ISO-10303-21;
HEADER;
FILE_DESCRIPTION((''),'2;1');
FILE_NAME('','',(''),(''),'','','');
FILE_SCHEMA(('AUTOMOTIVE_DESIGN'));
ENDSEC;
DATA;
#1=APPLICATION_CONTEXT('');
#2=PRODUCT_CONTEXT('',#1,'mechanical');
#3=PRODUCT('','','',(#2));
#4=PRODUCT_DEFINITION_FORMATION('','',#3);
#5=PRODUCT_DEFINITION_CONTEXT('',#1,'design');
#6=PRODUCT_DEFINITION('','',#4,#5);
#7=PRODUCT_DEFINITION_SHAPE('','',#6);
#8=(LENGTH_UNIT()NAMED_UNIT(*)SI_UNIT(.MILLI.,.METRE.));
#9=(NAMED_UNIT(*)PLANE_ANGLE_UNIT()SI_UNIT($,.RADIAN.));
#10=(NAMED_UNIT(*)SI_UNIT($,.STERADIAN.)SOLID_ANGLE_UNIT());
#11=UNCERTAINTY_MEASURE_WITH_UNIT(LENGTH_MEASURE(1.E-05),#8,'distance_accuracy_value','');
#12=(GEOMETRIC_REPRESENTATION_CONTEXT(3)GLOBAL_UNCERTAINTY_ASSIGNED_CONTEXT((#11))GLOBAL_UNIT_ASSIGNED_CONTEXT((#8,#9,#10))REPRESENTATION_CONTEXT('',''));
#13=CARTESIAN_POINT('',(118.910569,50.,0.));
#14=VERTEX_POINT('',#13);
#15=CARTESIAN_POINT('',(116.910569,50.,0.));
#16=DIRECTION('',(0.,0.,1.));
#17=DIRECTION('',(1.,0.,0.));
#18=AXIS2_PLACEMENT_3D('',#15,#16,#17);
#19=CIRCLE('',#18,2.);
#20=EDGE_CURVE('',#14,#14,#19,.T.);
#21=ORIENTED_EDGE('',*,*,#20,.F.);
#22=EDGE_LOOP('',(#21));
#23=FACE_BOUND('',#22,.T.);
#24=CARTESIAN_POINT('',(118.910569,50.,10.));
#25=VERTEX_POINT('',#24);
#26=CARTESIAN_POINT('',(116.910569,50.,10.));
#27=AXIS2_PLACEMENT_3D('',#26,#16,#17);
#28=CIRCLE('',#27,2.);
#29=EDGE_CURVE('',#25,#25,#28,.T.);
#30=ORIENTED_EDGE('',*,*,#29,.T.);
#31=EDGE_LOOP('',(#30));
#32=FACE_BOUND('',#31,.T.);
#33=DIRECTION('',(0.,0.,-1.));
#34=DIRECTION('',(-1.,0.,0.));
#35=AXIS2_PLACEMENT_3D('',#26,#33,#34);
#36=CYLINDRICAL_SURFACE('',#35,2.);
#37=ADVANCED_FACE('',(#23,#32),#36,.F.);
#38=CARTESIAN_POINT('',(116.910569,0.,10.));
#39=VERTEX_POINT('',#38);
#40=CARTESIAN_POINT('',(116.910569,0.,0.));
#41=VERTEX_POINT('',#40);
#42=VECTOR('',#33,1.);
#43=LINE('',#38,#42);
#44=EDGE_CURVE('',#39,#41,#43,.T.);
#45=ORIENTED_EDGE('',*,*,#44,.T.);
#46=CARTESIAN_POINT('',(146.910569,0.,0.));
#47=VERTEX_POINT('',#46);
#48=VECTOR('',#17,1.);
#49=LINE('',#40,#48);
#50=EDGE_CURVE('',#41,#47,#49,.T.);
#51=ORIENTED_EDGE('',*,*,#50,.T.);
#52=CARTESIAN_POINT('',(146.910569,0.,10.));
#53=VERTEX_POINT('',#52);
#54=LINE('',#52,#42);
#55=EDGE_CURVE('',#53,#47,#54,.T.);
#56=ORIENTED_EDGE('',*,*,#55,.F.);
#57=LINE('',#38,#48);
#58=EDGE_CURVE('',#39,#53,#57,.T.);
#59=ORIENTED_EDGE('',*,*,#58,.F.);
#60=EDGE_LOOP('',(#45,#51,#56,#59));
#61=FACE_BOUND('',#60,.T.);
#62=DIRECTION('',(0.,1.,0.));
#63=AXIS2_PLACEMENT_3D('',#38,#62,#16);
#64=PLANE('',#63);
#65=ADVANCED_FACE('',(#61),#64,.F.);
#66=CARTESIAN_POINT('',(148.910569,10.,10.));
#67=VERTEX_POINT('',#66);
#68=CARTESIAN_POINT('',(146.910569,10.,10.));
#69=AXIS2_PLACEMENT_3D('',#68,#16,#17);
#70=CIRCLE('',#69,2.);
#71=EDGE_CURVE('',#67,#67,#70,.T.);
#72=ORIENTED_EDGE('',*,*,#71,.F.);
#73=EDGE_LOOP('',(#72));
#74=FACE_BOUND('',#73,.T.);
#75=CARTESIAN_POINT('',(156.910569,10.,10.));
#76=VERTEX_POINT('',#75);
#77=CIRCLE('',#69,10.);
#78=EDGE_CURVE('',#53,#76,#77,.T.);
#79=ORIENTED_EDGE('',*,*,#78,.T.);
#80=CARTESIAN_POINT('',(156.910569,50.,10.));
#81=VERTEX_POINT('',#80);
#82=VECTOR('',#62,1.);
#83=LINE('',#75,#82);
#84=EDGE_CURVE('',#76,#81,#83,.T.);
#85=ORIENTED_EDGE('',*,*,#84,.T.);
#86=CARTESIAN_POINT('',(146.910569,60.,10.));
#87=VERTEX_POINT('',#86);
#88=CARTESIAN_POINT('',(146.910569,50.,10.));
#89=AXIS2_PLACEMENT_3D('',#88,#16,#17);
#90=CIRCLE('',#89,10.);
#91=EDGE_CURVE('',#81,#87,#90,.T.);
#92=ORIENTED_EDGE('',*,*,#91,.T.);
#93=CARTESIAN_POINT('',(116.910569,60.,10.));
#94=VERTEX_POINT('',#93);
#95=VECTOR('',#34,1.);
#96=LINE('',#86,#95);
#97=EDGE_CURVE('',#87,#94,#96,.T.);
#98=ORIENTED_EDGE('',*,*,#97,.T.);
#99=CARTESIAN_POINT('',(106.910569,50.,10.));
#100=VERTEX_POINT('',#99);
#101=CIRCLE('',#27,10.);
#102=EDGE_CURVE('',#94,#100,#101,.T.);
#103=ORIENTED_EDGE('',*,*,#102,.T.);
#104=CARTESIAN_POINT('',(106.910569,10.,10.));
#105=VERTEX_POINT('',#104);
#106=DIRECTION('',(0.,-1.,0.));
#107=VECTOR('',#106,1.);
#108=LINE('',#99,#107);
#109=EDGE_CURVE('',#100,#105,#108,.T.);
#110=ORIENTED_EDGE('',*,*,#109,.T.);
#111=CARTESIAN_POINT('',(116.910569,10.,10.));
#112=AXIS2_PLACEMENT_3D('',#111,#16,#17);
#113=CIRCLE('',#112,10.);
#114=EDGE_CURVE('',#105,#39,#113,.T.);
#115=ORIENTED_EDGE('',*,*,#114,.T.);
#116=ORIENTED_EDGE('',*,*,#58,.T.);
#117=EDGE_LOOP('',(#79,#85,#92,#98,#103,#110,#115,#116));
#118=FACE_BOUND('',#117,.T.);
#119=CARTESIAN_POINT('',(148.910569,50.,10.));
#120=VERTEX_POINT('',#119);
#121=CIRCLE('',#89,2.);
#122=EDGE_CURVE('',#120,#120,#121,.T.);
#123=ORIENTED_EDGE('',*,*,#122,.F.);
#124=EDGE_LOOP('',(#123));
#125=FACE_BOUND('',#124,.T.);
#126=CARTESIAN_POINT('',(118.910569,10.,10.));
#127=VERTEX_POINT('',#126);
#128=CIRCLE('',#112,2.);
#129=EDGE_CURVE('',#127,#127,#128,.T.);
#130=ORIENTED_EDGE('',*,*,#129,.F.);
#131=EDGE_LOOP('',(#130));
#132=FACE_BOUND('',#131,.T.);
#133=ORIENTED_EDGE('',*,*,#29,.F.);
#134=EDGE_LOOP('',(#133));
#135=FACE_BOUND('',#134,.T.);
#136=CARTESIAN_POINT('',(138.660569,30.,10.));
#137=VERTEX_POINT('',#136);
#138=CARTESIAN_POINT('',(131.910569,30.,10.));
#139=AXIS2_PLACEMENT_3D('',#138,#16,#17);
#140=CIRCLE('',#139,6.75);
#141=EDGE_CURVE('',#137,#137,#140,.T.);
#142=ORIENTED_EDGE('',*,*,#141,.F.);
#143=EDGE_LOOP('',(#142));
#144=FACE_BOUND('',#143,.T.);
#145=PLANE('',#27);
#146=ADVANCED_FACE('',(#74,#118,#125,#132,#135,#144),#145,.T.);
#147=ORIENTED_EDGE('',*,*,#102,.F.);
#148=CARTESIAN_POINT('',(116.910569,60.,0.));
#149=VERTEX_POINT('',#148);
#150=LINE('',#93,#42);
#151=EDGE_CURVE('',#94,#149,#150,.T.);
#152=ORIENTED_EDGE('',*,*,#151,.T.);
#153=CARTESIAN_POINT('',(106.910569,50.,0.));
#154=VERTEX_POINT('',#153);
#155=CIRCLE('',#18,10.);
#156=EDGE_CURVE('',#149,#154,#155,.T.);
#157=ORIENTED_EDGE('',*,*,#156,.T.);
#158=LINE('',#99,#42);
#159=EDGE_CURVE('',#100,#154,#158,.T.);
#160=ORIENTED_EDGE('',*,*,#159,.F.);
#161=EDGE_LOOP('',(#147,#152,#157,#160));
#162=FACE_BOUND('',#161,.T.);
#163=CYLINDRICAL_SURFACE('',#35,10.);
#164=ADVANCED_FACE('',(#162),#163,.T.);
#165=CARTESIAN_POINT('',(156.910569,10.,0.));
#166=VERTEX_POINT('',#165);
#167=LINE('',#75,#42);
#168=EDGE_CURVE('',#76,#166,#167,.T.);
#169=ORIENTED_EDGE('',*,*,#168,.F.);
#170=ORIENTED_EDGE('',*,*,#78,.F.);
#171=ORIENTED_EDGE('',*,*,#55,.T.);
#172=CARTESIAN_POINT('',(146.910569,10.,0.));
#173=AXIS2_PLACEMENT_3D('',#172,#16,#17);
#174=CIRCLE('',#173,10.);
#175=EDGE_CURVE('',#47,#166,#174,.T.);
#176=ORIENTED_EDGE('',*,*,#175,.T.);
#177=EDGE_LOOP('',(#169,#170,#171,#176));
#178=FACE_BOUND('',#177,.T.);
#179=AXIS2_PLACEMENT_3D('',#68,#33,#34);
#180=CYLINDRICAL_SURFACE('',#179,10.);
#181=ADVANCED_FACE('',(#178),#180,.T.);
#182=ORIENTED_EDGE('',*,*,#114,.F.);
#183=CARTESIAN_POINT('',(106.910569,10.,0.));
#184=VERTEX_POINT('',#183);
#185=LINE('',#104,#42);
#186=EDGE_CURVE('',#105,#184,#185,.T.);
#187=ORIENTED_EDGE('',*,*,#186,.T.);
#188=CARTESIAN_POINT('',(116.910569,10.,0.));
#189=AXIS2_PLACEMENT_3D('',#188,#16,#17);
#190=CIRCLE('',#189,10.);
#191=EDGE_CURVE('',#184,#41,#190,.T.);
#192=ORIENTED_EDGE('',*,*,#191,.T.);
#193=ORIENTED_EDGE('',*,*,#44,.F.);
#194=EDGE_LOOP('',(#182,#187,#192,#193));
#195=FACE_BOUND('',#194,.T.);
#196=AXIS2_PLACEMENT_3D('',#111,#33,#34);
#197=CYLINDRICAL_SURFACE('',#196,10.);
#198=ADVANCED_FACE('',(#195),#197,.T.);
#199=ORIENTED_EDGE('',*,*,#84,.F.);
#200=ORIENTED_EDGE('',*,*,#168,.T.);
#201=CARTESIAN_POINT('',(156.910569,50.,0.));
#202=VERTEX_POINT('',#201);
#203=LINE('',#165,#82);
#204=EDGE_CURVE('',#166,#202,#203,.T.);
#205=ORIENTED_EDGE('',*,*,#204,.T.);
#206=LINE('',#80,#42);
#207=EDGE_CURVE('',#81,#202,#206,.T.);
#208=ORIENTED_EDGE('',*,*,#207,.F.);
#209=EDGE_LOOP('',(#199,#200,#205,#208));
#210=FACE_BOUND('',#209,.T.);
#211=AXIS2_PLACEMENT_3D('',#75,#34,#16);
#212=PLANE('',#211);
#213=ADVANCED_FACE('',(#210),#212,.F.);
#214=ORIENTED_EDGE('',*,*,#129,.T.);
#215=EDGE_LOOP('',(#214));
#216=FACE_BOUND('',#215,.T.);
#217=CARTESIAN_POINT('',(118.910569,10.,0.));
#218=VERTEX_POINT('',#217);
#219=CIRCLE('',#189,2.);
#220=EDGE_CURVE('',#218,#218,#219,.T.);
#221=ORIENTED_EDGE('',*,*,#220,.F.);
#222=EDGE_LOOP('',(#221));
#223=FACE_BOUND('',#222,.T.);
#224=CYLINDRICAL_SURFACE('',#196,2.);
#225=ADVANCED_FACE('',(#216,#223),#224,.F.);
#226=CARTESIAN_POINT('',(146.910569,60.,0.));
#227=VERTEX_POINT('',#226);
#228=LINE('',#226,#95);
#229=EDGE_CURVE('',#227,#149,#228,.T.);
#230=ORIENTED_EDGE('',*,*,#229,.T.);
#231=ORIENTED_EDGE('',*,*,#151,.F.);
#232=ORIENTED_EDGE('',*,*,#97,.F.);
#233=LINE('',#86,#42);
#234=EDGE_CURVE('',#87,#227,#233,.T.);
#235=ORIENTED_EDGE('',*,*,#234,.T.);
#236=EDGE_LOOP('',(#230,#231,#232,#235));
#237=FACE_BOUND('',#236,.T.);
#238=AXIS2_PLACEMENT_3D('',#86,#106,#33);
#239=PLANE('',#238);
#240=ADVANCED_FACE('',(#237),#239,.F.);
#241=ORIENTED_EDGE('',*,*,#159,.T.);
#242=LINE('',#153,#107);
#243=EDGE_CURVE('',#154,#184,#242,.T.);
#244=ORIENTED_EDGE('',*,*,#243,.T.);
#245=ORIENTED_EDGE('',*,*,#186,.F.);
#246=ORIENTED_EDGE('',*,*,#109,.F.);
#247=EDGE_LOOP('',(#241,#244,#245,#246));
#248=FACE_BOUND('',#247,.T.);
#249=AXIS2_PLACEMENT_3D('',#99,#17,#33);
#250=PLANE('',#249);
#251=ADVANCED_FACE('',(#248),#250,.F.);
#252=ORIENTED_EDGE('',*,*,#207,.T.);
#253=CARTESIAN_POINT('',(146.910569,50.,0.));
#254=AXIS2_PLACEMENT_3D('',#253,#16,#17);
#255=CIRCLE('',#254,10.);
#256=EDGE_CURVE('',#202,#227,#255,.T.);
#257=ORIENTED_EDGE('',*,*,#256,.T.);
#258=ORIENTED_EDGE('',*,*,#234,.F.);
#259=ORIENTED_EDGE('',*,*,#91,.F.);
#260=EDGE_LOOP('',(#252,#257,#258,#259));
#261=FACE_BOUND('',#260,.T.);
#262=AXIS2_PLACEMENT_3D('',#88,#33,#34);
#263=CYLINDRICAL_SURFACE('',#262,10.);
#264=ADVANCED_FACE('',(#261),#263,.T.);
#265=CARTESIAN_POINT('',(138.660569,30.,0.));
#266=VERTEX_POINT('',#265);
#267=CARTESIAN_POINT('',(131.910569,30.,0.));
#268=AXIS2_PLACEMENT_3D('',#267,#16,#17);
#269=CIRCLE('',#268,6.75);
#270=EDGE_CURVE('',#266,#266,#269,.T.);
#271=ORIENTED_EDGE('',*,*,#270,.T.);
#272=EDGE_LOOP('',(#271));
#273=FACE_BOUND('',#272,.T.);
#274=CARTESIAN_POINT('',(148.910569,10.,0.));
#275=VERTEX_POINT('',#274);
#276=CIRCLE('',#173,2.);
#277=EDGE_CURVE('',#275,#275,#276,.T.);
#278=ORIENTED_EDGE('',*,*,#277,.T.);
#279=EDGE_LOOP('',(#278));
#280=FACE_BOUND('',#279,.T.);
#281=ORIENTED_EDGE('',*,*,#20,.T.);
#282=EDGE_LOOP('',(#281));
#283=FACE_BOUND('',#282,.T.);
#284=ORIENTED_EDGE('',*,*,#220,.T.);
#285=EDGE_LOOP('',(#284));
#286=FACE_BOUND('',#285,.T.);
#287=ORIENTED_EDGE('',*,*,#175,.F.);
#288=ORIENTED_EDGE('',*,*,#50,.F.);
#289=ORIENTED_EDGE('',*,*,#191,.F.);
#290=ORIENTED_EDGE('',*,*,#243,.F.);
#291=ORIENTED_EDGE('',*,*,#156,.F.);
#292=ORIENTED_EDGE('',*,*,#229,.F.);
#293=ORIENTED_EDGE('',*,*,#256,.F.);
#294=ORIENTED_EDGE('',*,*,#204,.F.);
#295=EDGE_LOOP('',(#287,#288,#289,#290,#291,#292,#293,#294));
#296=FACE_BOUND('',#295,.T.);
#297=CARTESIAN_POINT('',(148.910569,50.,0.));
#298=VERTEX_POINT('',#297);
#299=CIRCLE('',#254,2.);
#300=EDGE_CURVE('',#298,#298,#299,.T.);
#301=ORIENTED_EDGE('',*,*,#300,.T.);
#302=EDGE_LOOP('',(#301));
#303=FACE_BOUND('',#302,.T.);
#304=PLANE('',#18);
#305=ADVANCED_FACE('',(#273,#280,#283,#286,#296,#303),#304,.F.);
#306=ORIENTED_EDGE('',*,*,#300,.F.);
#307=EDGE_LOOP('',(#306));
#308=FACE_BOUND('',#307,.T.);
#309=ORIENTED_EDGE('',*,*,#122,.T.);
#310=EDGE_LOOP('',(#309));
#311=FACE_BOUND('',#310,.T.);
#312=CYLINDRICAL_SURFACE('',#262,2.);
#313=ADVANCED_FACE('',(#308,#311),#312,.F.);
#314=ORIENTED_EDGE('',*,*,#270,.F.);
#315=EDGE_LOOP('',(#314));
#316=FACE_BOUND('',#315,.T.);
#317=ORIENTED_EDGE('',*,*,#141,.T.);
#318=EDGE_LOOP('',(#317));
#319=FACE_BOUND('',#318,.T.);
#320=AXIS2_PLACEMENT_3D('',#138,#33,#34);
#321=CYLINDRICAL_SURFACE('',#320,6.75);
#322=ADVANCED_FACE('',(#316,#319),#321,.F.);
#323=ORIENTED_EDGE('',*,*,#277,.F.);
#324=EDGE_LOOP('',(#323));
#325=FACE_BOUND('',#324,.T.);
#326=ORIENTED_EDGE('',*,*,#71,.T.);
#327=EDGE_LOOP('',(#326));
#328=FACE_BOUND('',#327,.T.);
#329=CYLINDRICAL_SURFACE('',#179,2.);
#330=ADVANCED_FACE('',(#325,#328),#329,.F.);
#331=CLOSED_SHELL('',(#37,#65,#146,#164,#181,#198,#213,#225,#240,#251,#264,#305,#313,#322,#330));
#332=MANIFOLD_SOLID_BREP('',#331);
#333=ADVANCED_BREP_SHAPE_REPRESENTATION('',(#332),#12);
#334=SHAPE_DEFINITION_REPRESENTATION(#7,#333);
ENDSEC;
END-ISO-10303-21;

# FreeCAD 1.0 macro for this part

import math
import FreeCAD as App
import Part
import Sketcher
from FreeCAD import Vector

doc = App.newDocument("Part")
params = doc.addObject("Spreadsheet::Sheet", "Params")
for row, (alias, value) in enumerate([
    ("sketch1_diameter", "4 mm"),
    ("sketch1_radius", "10 mm"),
    ("sketch1_diameter2", "13.5 mm"),
    ("sketch1_width", "30 mm"),
    ("sketch1_height", "40 mm"),
    ("pad1_length", "10 mm"),
], start=1):
    params.set(f"A{row}", alias)
    params.set(f"B{row}", "=" + value)
    params.setAlias(f"B{row}", alias)

body = doc.addObject("PartDesign::Body", "Body")

# Sketch on XY plane
sketch1 = doc.addObject("Sketcher::SketchObject", "Sketch")
body.addObject(sketch1)
sketch1.AttachmentSupport = (doc.XY_Plane, [""])
sketch1.MapMode = "FlatFace"
sketch1.addGeometry([
    Part.LineSegment(Vector(106.9, 50, 0), Vector(106.9, 10, 0)),  # 0
    Part.ArcOfCircle(Part.Circle(Vector(116.9, 10, 0), Vector(0, 0, 1), 10), math.radians(180), math.radians(270)),  # 1
    Part.LineSegment(Vector(116.9, 0, 0), Vector(146.9, 0, 0)),  # 2
    Part.ArcOfCircle(Part.Circle(Vector(146.9, 10, 0), Vector(0, 0, 1), 10), math.radians(-90), math.radians(0)),  # 3
    Part.LineSegment(Vector(156.9, 10, 0), Vector(156.9, 50, 0)),  # 4
    Part.ArcOfCircle(Part.Circle(Vector(146.9, 50, 0), Vector(0, 0, 1), 10), math.radians(0), math.radians(90)),  # 5
    Part.LineSegment(Vector(146.9, 60, 0), Vector(116.9, 60, 0)),  # 6
    Part.ArcOfCircle(Part.Circle(Vector(116.9, 50, 0), Vector(0, 0, 1), 10), math.radians(90), math.radians(180)),  # 7
    Part.Circle(Vector(116.9, 10, 0), Vector(0, 0, 1), 2),  # 8
    Part.Circle(Vector(146.9, 10, 0), Vector(0, 0, 1), 2),  # 9
    Part.Circle(Vector(116.9, 50, 0), Vector(0, 0, 1), 2),  # 10
    Part.Circle(Vector(131.9, 30, 0), Vector(0, 0, 1), 6.8),  # 11
    Part.Circle(Vector(146.9, 50, 0), Vector(0, 0, 1), 2),  # 12
], False)
sketch1.addConstraint([
    Sketcher.Constraint("Tangent", 0, 2, 1, 1),
    Sketcher.Constraint("Tangent", 1, 2, 2, 1),
    Sketcher.Constraint("Tangent", 2, 2, 3, 1),
    Sketcher.Constraint("Tangent", 3, 2, 4, 1),
    Sketcher.Constraint("Tangent", 4, 2, 5, 1),
    Sketcher.Constraint("Tangent", 5, 2, 6, 1),
    Sketcher.Constraint("Tangent", 6, 2, 7, 1),
    Sketcher.Constraint("Tangent", 7, 2, 0, 1),
    Sketcher.Constraint("Vertical", 0),
    Sketcher.Constraint("Horizontal", 2),
    Sketcher.Constraint("Vertical", 4),
    Sketcher.Constraint("Horizontal", 6),
    Sketcher.Constraint("Coincident", 8, 3, 1, 3),
    Sketcher.Constraint("Coincident", 9, 3, 3, 3),
    Sketcher.Constraint("Coincident", 10, 3, 7, 3),
    Sketcher.Constraint("Coincident", 12, 3, 5, 3),
    Sketcher.Constraint("Equal", 1, 3),
    Sketcher.Constraint("Equal", 3, 5),
    Sketcher.Constraint("Equal", 5, 7),
    Sketcher.Constraint("Equal", 8, 9),
    Sketcher.Constraint("Equal", 9, 10),
    Sketcher.Constraint("Equal", 10, 12),
    Sketcher.Constraint("PointOnObject", 1, 2, -1),
    Sketcher.Constraint("Diameter", 8, 4.0),
    Sketcher.Constraint("Radius", 1, 10.0),
    Sketcher.Constraint("Diameter", 11, 13.5),
    Sketcher.Constraint("DistanceX", 2, 1, 2, 2, 30.0),
    Sketcher.Constraint("DistanceY", 0, 2, 0, 1, 40.0),
    Sketcher.Constraint("DistanceY", -1, 1, 11, 3, 30.0),
    Sketcher.Constraint("DistanceX", 1, 3, 11, 3, 15.0),
    Sketcher.Constraint("DistanceX", -1, 1, 1, 3, 116.910569),
])
sketch1.setExpression("Constraints[23]", "Params.sketch1_diameter")
sketch1.setExpression("Constraints[24]", "Params.sketch1_radius")
sketch1.setExpression("Constraints[25]", "Params.sketch1_diameter2")
sketch1.setExpression("Constraints[26]", "Params.sketch1_width")
sketch1.setExpression("Constraints[27]", "Params.sketch1_height")
pad1 = doc.addObject("PartDesign::Pad", "Pad")
body.addObject(pad1)
pad1.Profile = sketch1
pad1.setExpression("Length", "Params.pad1_length")

doc.recompute()
